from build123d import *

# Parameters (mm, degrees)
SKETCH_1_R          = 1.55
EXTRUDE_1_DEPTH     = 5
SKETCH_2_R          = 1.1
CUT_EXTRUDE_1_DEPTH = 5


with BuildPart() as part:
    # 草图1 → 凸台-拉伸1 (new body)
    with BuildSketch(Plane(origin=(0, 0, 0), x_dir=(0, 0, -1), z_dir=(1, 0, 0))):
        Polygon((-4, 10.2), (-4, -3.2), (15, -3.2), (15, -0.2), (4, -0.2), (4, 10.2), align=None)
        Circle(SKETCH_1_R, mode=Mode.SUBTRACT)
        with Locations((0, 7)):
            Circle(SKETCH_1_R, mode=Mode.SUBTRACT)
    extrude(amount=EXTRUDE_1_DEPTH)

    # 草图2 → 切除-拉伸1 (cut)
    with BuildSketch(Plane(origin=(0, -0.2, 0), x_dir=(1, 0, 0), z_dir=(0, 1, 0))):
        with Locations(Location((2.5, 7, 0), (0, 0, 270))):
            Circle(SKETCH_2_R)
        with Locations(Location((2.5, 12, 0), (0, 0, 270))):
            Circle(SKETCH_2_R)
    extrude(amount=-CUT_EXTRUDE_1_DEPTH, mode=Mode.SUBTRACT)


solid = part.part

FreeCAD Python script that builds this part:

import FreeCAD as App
import Part
import Sketcher
from FreeCAD import Vector
Q = App.Units.Quantity

doc = App.newDocument("Part")
body = doc.addObject("PartDesign::Body", "Body")

sketch1 = body.newObject("Sketcher::SketchObject", "Sketch")
sketch1.AttachmentSupport = (doc.getObject("YZ_Plane"), [""])
sketch1.MapMode = "FlatFace"
sketch1.addGeometry([
    Part.LineSegment(Vector(10.2, 4, 0), Vector(-3.2, 4, 0)),
    Part.LineSegment(Vector(-3.2, 4, 0), Vector(-3.2, -15, 0)),
    Part.LineSegment(Vector(-3.2, -15, 0), Vector(-0.2, -15, 0)),
    Part.LineSegment(Vector(-0.2, -15, 0), Vector(-0.2, -4, 0)),
    Part.LineSegment(Vector(-0.2, -4, 0), Vector(10.2, -4, 0)),
    Part.LineSegment(Vector(10.2, -4, 0), Vector(10.2, 4, 0)),
    Part.Circle(Vector(0, 0, 0), Vector(0, 0, 1), 1.6),
    Part.Circle(Vector(7, 0, 0), Vector(0, 0, 1), 1.6),
], False)
sketch1.addConstraint([
    Sketcher.Constraint("Coincident", 0, 2, 1, 1),
    Sketcher.Constraint("Coincident", 1, 2, 2, 1),
    Sketcher.Constraint("Coincident", 2, 2, 3, 1),
    Sketcher.Constraint("Coincident", 3, 2, 4, 1),
    Sketcher.Constraint("Coincident", 4, 2, 5, 1),
    Sketcher.Constraint("Coincident", 5, 2, 0, 1),
    Sketcher.Constraint("Horizontal", 0),
    Sketcher.Constraint("Vertical", 1),
    Sketcher.Constraint("Horizontal", 2),
    Sketcher.Constraint("Vertical", 3),
    Sketcher.Constraint("Horizontal", 4),
    Sketcher.Constraint("Vertical", 5),
    Sketcher.Constraint("Coincident", 6, 3, -1, 1),
    Sketcher.Constraint("Equal", 6, 7),
    Sketcher.Constraint("PointOnObject", 7, 3, -1),
    Sketcher.Constraint("Diameter", 6, Q("3.1 mm")),
    Sketcher.Constraint("DistanceX", 2, 1, 2, 2, Q("3 mm")),
    Sketcher.Constraint("DistanceY", 1, 2, 1, 1, Q("19 mm")),
    Sketcher.Constraint("DistanceY", 3, 1, 3, 2, Q("11 mm")),
    Sketcher.Constraint("DistanceX", 0, 2, 0, 1, Q("13.4 mm")),
    Sketcher.Constraint("DistanceX", -1, 1, 7, 3, Q("7 mm")),
    Sketcher.Constraint("DistanceY", -1, 1, 0, 2, Q("4 mm")),
    Sketcher.Constraint("DistanceX", 0, 2, -1, 1, Q("3.2 mm")),
])
pad1 = body.newObject("PartDesign::Pad", "Pad")
pad1.Profile = sketch1
pad1.Length = 5

sketch2 = body.newObject("Sketcher::SketchObject", "Sketch001")
sketch2.AttachmentSupport = (doc.getObject("XZ_Plane"), [""])
sketch2.MapMode = "FlatFace"
sketch2.AttachmentOffset = App.Placement(Vector(0, 0, 0.2), App.Rotation())
sketch2.addGeometry([
    Part.Circle(Vector(2.5, -7, 0), Vector(0, 0, 1), 1.1),
    Part.Circle(Vector(2.5, -12, 0), Vector(0, 0, 1), 1.1),
], False)
sketch2.addConstraint([
    Sketcher.Constraint("Equal", 0, 1),
    Sketcher.Constraint("Vertical", 0, 3, 1, 3),
    Sketcher.Constraint("Diameter", 0, Q("2.2 mm")),
    Sketcher.Constraint("DistanceY", 0, 3, -1, 1, Q("7 mm")),
    Sketcher.Constraint("DistanceY", 1, 3, -1, 1, Q("12 mm")),
    Sketcher.Constraint("DistanceX", -1, 1, 0, 3, Q("2.5 mm")),
])
pocket1 = body.newObject("PartDesign::Pocket", "Pocket")
pocket1.Profile = sketch2
pocket1.Length = 5
pocket1.Reversed = True

doc.recompute()
